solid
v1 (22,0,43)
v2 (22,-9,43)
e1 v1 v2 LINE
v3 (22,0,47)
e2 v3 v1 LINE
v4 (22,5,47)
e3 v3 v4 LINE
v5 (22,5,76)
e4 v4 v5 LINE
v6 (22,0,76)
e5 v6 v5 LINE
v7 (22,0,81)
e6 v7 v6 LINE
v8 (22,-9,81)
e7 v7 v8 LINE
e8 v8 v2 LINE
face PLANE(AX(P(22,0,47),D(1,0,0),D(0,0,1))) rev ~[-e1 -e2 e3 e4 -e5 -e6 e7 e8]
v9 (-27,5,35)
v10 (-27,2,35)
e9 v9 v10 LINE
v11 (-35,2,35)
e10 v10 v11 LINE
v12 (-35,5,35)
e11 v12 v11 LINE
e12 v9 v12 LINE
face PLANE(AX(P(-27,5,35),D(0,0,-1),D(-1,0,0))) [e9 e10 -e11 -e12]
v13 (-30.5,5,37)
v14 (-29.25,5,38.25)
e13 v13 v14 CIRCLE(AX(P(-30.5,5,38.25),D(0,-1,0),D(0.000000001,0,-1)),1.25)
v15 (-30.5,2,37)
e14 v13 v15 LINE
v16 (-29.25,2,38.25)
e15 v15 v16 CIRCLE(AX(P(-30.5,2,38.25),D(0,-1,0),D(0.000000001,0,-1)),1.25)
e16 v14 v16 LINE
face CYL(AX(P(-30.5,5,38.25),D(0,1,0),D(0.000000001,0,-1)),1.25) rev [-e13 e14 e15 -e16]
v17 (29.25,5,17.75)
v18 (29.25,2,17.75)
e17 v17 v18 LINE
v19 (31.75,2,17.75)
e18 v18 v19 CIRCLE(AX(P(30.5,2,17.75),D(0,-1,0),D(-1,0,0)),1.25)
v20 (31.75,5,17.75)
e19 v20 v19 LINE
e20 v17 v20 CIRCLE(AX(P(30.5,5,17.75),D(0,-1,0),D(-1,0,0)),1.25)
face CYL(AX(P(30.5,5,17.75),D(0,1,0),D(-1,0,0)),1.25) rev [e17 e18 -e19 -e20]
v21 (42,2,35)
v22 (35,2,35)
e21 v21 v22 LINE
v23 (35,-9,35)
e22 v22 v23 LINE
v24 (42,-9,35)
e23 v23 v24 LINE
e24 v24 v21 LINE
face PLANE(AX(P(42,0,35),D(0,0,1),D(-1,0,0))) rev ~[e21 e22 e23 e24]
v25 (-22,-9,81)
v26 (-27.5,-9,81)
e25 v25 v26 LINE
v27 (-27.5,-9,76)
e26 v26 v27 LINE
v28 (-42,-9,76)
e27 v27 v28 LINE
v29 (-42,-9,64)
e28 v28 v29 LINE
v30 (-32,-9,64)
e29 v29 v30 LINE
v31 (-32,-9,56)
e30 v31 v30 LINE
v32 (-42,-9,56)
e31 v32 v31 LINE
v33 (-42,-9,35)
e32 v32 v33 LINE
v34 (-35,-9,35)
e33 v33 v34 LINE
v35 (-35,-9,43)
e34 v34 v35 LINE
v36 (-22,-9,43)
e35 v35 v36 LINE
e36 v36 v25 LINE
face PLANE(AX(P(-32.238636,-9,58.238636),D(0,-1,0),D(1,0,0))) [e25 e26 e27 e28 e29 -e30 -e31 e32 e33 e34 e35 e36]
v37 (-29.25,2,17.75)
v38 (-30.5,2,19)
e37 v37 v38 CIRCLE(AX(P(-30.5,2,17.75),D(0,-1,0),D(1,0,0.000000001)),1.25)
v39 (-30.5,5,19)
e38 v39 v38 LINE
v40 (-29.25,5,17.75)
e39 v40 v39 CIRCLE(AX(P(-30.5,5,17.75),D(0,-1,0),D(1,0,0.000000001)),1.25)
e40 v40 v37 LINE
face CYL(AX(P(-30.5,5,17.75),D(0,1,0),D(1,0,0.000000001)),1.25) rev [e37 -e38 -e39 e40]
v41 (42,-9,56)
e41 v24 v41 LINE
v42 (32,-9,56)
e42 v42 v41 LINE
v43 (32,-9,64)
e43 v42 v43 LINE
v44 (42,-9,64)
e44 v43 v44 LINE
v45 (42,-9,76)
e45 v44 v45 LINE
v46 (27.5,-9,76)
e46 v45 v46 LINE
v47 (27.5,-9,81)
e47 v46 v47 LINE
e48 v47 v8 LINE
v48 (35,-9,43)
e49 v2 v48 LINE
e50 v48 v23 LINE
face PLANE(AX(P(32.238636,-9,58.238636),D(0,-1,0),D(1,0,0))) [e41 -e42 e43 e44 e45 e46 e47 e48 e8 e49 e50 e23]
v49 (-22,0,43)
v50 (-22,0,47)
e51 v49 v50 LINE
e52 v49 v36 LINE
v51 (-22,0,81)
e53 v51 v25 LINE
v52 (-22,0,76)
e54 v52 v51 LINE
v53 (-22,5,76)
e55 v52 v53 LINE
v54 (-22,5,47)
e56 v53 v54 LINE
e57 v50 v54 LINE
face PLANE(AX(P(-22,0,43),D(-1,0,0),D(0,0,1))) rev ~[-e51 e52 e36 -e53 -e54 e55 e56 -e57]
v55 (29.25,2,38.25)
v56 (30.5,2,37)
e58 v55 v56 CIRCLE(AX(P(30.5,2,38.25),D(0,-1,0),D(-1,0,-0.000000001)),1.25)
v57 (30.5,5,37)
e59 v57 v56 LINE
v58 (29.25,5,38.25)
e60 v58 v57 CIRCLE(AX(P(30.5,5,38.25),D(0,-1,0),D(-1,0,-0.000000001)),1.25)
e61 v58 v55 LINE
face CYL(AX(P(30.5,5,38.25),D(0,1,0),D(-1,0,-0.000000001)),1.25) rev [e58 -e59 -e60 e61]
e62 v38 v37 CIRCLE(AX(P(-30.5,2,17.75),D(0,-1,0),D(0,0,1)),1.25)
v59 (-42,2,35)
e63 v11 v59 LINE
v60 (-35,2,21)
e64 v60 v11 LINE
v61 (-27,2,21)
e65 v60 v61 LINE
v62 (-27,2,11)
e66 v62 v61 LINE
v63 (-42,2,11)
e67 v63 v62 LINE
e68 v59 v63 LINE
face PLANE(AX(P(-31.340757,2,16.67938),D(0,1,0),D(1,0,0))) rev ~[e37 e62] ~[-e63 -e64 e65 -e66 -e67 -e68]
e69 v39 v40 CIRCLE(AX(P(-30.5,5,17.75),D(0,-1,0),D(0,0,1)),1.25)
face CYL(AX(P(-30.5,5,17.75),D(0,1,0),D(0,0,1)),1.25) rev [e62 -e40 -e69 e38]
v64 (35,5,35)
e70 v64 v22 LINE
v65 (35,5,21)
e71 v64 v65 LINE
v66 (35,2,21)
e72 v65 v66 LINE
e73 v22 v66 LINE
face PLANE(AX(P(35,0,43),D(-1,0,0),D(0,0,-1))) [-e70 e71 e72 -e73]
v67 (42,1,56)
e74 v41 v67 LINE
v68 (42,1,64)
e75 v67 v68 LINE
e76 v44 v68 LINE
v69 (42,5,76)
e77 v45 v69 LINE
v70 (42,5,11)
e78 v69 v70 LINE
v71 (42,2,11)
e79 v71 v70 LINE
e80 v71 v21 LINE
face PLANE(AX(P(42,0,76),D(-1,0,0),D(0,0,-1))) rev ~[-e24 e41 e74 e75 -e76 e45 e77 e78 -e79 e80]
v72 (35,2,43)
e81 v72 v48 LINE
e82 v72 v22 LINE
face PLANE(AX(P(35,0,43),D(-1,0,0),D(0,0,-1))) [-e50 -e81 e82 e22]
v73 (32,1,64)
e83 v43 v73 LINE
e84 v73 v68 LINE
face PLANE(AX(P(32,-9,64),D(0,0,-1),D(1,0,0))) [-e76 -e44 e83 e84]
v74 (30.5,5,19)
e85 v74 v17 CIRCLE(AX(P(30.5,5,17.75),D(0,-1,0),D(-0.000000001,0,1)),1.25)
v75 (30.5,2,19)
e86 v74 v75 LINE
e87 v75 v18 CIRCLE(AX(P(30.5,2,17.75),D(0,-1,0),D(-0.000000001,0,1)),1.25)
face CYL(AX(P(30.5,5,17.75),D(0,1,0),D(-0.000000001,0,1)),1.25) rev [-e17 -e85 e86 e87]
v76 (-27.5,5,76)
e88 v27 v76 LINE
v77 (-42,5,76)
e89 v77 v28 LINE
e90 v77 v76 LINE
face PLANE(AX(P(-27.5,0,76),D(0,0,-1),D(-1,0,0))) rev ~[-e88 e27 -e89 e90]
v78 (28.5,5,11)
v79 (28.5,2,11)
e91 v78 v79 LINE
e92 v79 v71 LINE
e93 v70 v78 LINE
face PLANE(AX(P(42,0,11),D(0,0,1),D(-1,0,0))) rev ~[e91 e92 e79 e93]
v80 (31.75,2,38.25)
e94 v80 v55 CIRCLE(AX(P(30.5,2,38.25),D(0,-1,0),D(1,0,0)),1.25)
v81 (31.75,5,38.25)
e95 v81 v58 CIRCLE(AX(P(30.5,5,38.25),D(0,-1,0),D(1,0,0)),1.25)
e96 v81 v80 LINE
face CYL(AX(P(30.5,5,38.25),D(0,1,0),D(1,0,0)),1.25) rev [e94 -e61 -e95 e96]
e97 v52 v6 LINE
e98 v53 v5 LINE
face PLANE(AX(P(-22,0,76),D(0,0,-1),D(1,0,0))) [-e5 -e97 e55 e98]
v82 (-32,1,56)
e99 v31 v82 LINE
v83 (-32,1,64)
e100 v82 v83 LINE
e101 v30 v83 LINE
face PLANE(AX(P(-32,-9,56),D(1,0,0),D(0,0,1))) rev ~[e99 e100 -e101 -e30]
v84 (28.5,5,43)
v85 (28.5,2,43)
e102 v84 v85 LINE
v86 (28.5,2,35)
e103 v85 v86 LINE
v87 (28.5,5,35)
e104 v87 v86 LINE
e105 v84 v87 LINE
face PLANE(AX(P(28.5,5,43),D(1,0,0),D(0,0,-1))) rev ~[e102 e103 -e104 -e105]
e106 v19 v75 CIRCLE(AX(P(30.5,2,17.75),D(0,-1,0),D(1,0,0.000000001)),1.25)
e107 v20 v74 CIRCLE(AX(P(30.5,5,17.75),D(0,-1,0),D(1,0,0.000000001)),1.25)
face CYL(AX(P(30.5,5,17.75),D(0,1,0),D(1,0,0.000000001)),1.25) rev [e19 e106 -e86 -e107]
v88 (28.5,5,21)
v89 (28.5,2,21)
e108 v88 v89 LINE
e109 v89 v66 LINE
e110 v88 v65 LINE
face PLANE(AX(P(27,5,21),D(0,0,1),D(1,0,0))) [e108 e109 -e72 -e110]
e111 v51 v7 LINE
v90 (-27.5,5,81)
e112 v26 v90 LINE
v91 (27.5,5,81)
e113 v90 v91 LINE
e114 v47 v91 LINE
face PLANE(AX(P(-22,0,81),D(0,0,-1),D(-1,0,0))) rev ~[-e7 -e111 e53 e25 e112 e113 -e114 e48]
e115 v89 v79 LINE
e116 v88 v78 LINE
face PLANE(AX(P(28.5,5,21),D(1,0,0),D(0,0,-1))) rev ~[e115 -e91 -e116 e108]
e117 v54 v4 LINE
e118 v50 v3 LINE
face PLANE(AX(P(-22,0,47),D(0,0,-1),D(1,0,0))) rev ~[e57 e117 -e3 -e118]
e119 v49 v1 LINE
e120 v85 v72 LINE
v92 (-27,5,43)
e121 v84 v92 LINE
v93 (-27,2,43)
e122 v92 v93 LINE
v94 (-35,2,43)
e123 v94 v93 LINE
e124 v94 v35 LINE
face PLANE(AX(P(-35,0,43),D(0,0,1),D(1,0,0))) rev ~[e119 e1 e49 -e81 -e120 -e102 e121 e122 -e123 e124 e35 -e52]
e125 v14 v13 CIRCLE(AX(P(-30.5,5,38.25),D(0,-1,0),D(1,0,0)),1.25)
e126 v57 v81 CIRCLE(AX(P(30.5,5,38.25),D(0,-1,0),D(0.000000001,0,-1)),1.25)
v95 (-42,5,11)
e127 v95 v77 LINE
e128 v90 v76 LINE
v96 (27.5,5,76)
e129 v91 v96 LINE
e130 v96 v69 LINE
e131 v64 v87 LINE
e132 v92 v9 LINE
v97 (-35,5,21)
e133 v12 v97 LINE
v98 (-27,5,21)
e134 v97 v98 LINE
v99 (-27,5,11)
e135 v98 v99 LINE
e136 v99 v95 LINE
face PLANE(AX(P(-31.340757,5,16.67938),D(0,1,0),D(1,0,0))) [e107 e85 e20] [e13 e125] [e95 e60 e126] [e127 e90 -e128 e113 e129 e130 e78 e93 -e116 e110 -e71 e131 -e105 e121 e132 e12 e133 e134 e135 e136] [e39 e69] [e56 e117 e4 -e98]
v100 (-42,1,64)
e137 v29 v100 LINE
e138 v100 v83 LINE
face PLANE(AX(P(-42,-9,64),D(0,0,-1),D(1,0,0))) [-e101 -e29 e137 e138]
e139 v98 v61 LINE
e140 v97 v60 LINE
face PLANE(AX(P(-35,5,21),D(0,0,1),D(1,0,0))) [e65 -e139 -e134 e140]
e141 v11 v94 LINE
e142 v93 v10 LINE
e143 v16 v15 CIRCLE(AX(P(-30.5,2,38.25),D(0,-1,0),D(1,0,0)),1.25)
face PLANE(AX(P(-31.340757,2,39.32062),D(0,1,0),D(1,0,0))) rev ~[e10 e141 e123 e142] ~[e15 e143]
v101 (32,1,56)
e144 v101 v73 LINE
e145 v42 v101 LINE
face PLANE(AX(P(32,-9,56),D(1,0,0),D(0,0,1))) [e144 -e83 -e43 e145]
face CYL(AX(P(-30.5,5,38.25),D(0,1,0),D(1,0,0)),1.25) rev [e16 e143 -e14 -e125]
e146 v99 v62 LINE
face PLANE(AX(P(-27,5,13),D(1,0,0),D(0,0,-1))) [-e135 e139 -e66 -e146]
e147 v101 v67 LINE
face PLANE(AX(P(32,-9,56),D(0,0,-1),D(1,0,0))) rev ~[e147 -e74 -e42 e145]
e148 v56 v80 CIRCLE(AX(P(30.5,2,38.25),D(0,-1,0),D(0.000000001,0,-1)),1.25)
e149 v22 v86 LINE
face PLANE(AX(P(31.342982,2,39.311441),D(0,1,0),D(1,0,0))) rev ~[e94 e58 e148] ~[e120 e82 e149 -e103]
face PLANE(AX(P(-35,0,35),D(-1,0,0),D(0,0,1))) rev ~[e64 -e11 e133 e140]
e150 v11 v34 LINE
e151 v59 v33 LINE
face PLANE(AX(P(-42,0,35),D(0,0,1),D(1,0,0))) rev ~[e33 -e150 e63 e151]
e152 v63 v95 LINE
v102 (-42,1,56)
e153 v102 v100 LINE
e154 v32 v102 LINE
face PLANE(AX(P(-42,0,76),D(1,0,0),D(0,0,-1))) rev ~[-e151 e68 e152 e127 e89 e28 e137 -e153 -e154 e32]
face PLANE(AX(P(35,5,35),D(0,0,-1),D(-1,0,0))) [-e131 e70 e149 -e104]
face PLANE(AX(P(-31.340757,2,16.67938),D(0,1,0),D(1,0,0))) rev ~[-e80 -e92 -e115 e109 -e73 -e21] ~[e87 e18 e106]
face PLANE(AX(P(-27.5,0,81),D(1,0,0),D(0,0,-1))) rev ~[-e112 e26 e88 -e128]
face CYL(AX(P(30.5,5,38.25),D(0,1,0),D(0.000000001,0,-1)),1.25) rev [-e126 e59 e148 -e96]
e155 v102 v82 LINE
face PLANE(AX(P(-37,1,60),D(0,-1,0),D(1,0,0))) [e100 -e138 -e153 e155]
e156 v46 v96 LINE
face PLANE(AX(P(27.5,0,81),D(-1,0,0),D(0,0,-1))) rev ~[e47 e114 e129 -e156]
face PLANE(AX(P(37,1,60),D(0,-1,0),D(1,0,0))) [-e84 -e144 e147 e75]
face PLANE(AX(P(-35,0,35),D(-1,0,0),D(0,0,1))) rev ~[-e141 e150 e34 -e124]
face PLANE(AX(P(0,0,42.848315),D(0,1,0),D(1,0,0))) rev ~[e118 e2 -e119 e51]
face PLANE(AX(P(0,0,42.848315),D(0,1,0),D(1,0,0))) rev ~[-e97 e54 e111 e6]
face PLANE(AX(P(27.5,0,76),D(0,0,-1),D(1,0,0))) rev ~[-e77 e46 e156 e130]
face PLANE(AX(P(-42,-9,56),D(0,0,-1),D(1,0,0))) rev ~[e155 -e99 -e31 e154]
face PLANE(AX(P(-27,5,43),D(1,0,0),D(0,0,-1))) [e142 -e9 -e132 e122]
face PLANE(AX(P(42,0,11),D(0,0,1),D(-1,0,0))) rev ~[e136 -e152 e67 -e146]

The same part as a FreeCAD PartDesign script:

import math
import FreeCAD as App
import Part
import Sketcher
from FreeCAD import Vector
Q = App.Units.Quantity

doc = App.newDocument("Part")
params = doc.addObject("Spreadsheet::Sheet", "Params")
for row, (alias, value) in enumerate([
    ("sketch1_width", "55 mm"),
    ("sketch1_width2", "84 mm"),
    ("sketch1_width3", "44 mm"),
    ("sketch1_width4", "70 mm"),
    ("sketch1_height", "65 mm"),
    ("pad1_length", "5 mm"),
    ("sketch2_width", "7 mm"),
    ("sketch2_width2", "13 mm"),
    ("sketch2_height", "41 mm"),
    ("sketch2_height2", "8 mm"),
    ("sketch2_height3", "38 mm"),
    ("pad2_length", "9 mm"),
    ("sketch3_width", "84 mm"),
    ("sketch3_width2", "7 mm"),
    ("sketch3_height", "24 mm"),
    ("sketch3_height2", "22 mm"),
    ("pocket1_length", "2 mm"),
    ("sketch4_width", "8 mm"),
    ("sketch4_radius", "1.25 mm"),
    ("pad3_length", "3 mm"),
    ("sketch5_width", "54 mm"),
    ("sketch5_height", "8 mm"),
    ("sketch5_height2", "10 mm"),
    ("sketch5_width2", "1.5 mm"),
    ("pocket2_length", "10 mm"),
    ("sketch6_width", "10 mm"),
    ("sketch6_height", "8 mm"),
    ("pocket3_length", "10 mm"),
], start=1):
    params.set(f"A{row}", alias)
    params.set(f"B{row}", "=" + value)
    params.setAlias(f"B{row}", alias)

body = doc.addObject("PartDesign::Body", "Body")

# Sketch on XZ plane
sketch1 = body.newObject("Sketcher::SketchObject", "Sketch")
sketch1.AttachmentSupport = (doc.getObject("XZ_Plane"), [""])
sketch1.MapMode = "FlatFace"
sketch1.addGeometry([
    Part.LineSegment(Vector(-42, 11, 0), Vector(-42, 76, 0)),  # 0
    Part.LineSegment(Vector(-42, 76, 0), Vector(-28, 76, 0)),  # 1
    Part.LineSegment(Vector(-28, 76, 0), Vector(-28, 81, 0)),  # 2
    Part.LineSegment(Vector(-28, 81, 0), Vector(28, 81, 0)),  # 3
    Part.LineSegment(Vector(28, 81, 0), Vector(28, 76, 0)),  # 4
    Part.LineSegment(Vector(28, 76, 0), Vector(42, 76, 0)),  # 5
    Part.LineSegment(Vector(42, 76, 0), Vector(42, 11, 0)),  # 6
    Part.LineSegment(Vector(42, 11, 0), Vector(-42, 11, 0)),  # 7
    Part.LineSegment(Vector(-22, 76, 0), Vector(-22, 47, 0)),  # 8
    Part.LineSegment(Vector(-22, 47, 0), Vector(22, 47, 0)),  # 9
    Part.LineSegment(Vector(22, 47, 0), Vector(22, 76, 0)),  # 10
    Part.LineSegment(Vector(22, 76, 0), Vector(-22, 76, 0)),  # 11
    Part.LineSegment(Vector(35, 43, 0), Vector(-35, 43, 0)),  # 12
    Part.LineSegment(Vector(-35, 43, 0), Vector(-35, 13, 0)),  # 13
    Part.LineSegment(Vector(-35, 13, 0), Vector(35, 13, 0)),  # 14
    Part.LineSegment(Vector(35, 13, 0), Vector(35, 43, 0)),  # 15
], False)
sketch1.addConstraint([
    Sketcher.Constraint("Coincident", 0, 2, 1, 1),
    Sketcher.Constraint("Coincident", 1, 2, 2, 1),
    Sketcher.Constraint("Coincident", 2, 2, 3, 1),
    Sketcher.Constraint("Coincident", 3, 2, 4, 1),
    Sketcher.Constraint("Coincident", 4, 2, 5, 1),
    Sketcher.Constraint("Coincident", 5, 2, 6, 1),
    Sketcher.Constraint("Coincident", 6, 2, 7, 1),
    Sketcher.Constraint("Coincident", 7, 2, 0, 1),
    Sketcher.Constraint("Coincident", 8, 2, 9, 1),
    Sketcher.Constraint("Coincident", 9, 2, 10, 1),
    Sketcher.Constraint("Coincident", 10, 2, 11, 1),
    Sketcher.Constraint("Coincident", 11, 2, 8, 1),
    Sketcher.Constraint("Coincident", 12, 2, 13, 1),
    Sketcher.Constraint("Coincident", 13, 2, 14, 1),
    Sketcher.Constraint("Coincident", 14, 2, 15, 1),
    Sketcher.Constraint("Coincident", 15, 2, 12, 1),
    Sketcher.Constraint("Vertical", 0),
    Sketcher.Constraint("Horizontal", 1),
    Sketcher.Constraint("Vertical", 2),
    Sketcher.Constraint("Horizontal", 3),
    Sketcher.Constraint("Vertical", 4),
    Sketcher.Constraint("Horizontal", 5),
    Sketcher.Constraint("Vertical", 6),
    Sketcher.Constraint("Horizontal", 7),
    Sketcher.Constraint("Vertical", 8),
    Sketcher.Constraint("Horizontal", 9),
    Sketcher.Constraint("Vertical", 10),
    Sketcher.Constraint("Horizontal", 11),
    Sketcher.Constraint("Horizontal", 12),
    Sketcher.Constraint("Vertical", 13),
    Sketcher.Constraint("Horizontal", 14),
    Sketcher.Constraint("Vertical", 15),
    Sketcher.Constraint("Symmetric", 1, 2, 4, 2, -2),
    Sketcher.Constraint("Horizontal", 5, 2, 10, 2),
    Sketcher.Constraint("Equal", 1, 5),
    Sketcher.Constraint("DistanceX", 3, 1, 3, 2, Q("55 mm")),
    Sketcher.Constraint("DistanceX", 7, 2, 7, 1, Q("84 mm")),
    Sketcher.Constraint("DistanceX", 9, 1, 9, 2, Q("44 mm")),
    Sketcher.Constraint("DistanceX", 12, 2, 12, 1, Q("70 mm")),
    Sketcher.Constraint("DistanceY", 0, 1, 0, 2, Q("65 mm")),
    Sketcher.Constraint("DistanceY", 2, 1, 2, 2, Q("5 mm")),
    Sketcher.Constraint("DistanceY", 8, 2, 8, 1, Q("29 mm")),
    Sketcher.Constraint("DistanceY", 13, 2, 13, 1, Q("30 mm")),
    Sketcher.Constraint("DistanceY", -1, 1, 0, 2, Q("76 mm")),
    Sketcher.Constraint("DistanceX", 8, 2, -1, 1, Q("22 mm")),
    Sketcher.Constraint("DistanceX", 12, 2, -1, 1, Q("35 mm")),
    Sketcher.Constraint("DistanceY", -1, 1, 12, 2, Q("43 mm")),
])
sketch1.setExpression("Constraints[35]", "Params.sketch1_width")
sketch1.setExpression("Constraints[36]", "Params.sketch1_width2")
sketch1.setExpression("Constraints[37]", "Params.sketch1_width3")
sketch1.setExpression("Constraints[38]", "Params.sketch1_width4")
sketch1.setExpression("Constraints[39]", "Params.sketch1_height")
pad1 = body.newObject("PartDesign::Pad", "Pad")
pad1.Profile = sketch1
pad1.setExpression("Length", "Params.pad1_length")
pad1.Reversed = True

# Sketch on XZ plane
sketch2 = body.newObject("Sketcher::SketchObject", "Sketch001")
sketch2.AttachmentSupport = (doc.getObject("XZ_Plane"), [""])
sketch2.MapMode = "FlatFace"
sketch2.addGeometry([
    Part.LineSegment(Vector(-28, 76, 0), Vector(-42, 76, 0)),  # 0
    Part.LineSegment(Vector(-42, 76, 0), Vector(-42, 35, 0)),  # 1
    Part.LineSegment(Vector(-42, 35, 0), Vector(-35, 35, 0)),  # 2
    Part.LineSegment(Vector(-35, 35, 0), Vector(-35, 43, 0)),  # 3
    Part.LineSegment(Vector(-35, 43, 0), Vector(-22, 43, 0)),  # 4
    Part.LineSegment(Vector(-22, 43, 0), Vector(-22, 81, 0)),  # 5
    Part.LineSegment(Vector(-22, 81, 0), Vector(-28, 81, 0)),  # 6
    Part.LineSegment(Vector(-28, 81, 0), Vector(-28, 76, 0)),  # 7
    Part.LineSegment(Vector(22, 81, 0), Vector(22, 43, 0)),  # 8
    Part.LineSegment(Vector(22, 43, 0), Vector(35, 43, 0)),  # 9
    Part.LineSegment(Vector(35, 43, 0), Vector(35, 35, 0)),  # 10
    Part.LineSegment(Vector(35, 35, 0), Vector(42, 35, 0)),  # 11
    Part.LineSegment(Vector(42, 35, 0), Vector(42, 76, 0)),  # 12
    Part.LineSegment(Vector(42, 76, 0), Vector(28, 76, 0)),  # 13
    Part.LineSegment(Vector(28, 76, 0), Vector(28, 81, 0)),  # 14
    Part.LineSegment(Vector(28, 81, 0), Vector(22, 81, 0)),  # 15
], False)
sketch2.addConstraint([
    Sketcher.Constraint("Coincident", 0, 2, 1, 1),
    Sketcher.Constraint("Coincident", 1, 2, 2, 1),
    Sketcher.Constraint("Coincident", 2, 2, 3, 1),
    Sketcher.Constraint("Coincident", 3, 2, 4, 1),
    Sketcher.Constraint("Coincident", 4, 2, 5, 1),
    Sketcher.Constraint("Coincident", 5, 2, 6, 1),
    Sketcher.Constraint("Coincident", 6, 2, 7, 1),
    Sketcher.Constraint("Coincident", 7, 2, 0, 1),
    Sketcher.Constraint("Coincident", 8, 2, 9, 1),
    Sketcher.Constraint("Coincident", 9, 2, 10, 1),
    Sketcher.Constraint("Coincident", 10, 2, 11, 1),
    Sketcher.Constraint("Coincident", 11, 2, 12, 1),
    Sketcher.Constraint("Coincident", 12, 2, 13, 1),
    Sketcher.Constraint("Coincident", 13, 2, 14, 1),
    Sketcher.Constraint("Coincident", 14, 2, 15, 1),
    Sketcher.Constraint("Coincident", 15, 2, 8, 1),
    Sketcher.Constraint("Horizontal", 0),
    Sketcher.Constraint("Vertical", 1),
    Sketcher.Constraint("Horizontal", 2),
    Sketcher.Constraint("Vertical", 3),
    Sketcher.Constraint("Horizontal", 4),
    Sketcher.Constraint("Vertical", 5),
    Sketcher.Constraint("Horizontal", 6),
    Sketcher.Constraint("Vertical", 7),
    Sketcher.Constraint("Vertical", 8),
    Sketcher.Constraint("Horizontal", 9),
    Sketcher.Constraint("Vertical", 10),
    Sketcher.Constraint("Horizontal", 11),
    Sketcher.Constraint("Vertical", 12),
    Sketcher.Constraint("Horizontal", 13),
    Sketcher.Constraint("Vertical", 14),
    Sketcher.Constraint("Horizontal", 15),
    Sketcher.Constraint("Symmetric", 4, 2, 8, 2, -2),
    Sketcher.Constraint("Symmetric", 2, 2, 10, 2, -2),
    Sketcher.Constraint("Symmetric", 0, 2, 12, 2, -2),
    Sketcher.Constraint("Symmetric", 6, 2, 14, 2, -2),
    Sketcher.Constraint("DistanceX", 2, 1, 2, 2, Q("7 mm")),
    Sketcher.Constraint("DistanceX", 4, 1, 4, 2, Q("13 mm")),
    Sketcher.Constraint("DistanceY", 1, 2, 1, 1, Q("41 mm")),
    Sketcher.Constraint("DistanceY", 3, 1, 3, 2, Q("8 mm")),
    Sketcher.Constraint("DistanceY", 5, 1, 5, 2, Q("38 mm")),
    Sketcher.Constraint("DistanceX", 0, 2, 0, 1, Q("14.5 mm")),
    Sketcher.Constraint("DistanceX", 0, 2, -1, 1, Q("42 mm")),
    Sketcher.Constraint("DistanceY", -1, 1, 0, 2, Q("76 mm")),
])
sketch2.setExpression("Constraints[36]", "Params.sketch2_width")
sketch2.setExpression("Constraints[37]", "Params.sketch2_width2")
sketch2.setExpression("Constraints[38]", "Params.sketch2_height")
sketch2.setExpression("Constraints[39]", "Params.sketch2_height2")
sketch2.setExpression("Constraints[40]", "Params.sketch2_height3")
pad2 = body.newObject("PartDesign::Pad", "Pad001")
pad2.Profile = sketch2
pad2.setExpression("Length", "Params.pad2_length")

# Sketch on XZ plane
sketch3 = body.newObject("Sketcher::SketchObject", "Sketch002")
sketch3.AttachmentSupport = (doc.getObject("XZ_Plane"), [""])
sketch3.MapMode = "FlatFace"
sketch3.addGeometry([
    Part.LineSegment(Vector(-42, 35, 0), Vector(-42, 11, 0)),  # 0
    Part.LineSegment(Vector(-42, 11, 0), Vector(42, 11, 0)),  # 1
    Part.LineSegment(Vector(42, 11, 0), Vector(42, 35, 0)),  # 2
    Part.LineSegment(Vector(42, 35, 0), Vector(35, 35, 0)),  # 3
    Part.LineSegment(Vector(35, 35, 0), Vector(35, 13, 0)),  # 4
    Part.LineSegment(Vector(35, 13, 0), Vector(-35, 13, 0)),  # 5
    Part.LineSegment(Vector(-35, 13, 0), Vector(-35, 35, 0)),  # 6
    Part.LineSegment(Vector(-35, 35, 0), Vector(-42, 35, 0)),  # 7
], False)
sketch3.addConstraint([
    Sketcher.Constraint("Coincident", 0, 2, 1, 1),
    Sketcher.Constraint("Coincident", 1, 2, 2, 1),
    Sketcher.Constraint("Coincident", 2, 2, 3, 1),
    Sketcher.Constraint("Coincident", 3, 2, 4, 1),
    Sketcher.Constraint("Coincident", 4, 2, 5, 1),
    Sketcher.Constraint("Coincident", 5, 2, 6, 1),
    Sketcher.Constraint("Coincident", 6, 2, 7, 1),
    Sketcher.Constraint("Coincident", 7, 2, 0, 1),
    Sketcher.Constraint("Vertical", 0),
    Sketcher.Constraint("Horizontal", 1),
    Sketcher.Constraint("Vertical", 2),
    Sketcher.Constraint("Horizontal", 3),
    Sketcher.Constraint("Vertical", 4),
    Sketcher.Constraint("Horizontal", 5),
    Sketcher.Constraint("Vertical", 6),
    Sketcher.Constraint("Horizontal", 7),
    Sketcher.Constraint("Symmetric", 3, 2, 6, 2, -2),
    Sketcher.Constraint("Equal", 3, 7),
    Sketcher.Constraint("DistanceX", 1, 1, 1, 2, Q("84 mm")),
    Sketcher.Constraint("DistanceX", 3, 2, 3, 1, Q("7 mm")),
    Sketcher.Constraint("DistanceY", 0, 2, 0, 1, Q("24 mm")),
    Sketcher.Constraint("DistanceY", 4, 2, 4, 1, Q("22 mm")),
    Sketcher.Constraint("DistanceY", -1, 1, 0, 2, Q("11 mm")),
])
sketch3.setExpression("Constraints[18]", "Params.sketch3_width")
sketch3.setExpression("Constraints[19]", "Params.sketch3_width2")
sketch3.setExpression("Constraints[20]", "Params.sketch3_height")
sketch3.setExpression("Constraints[21]", "Params.sketch3_height2")
pocket1 = body.newObject("PartDesign::Pocket", "Pocket")
pocket1.Profile = sketch3
pocket1.setExpression("Length", "Params.pocket1_length")

# Sketch on XZ plane
sketch4 = body.newObject("Sketcher::SketchObject", "Sketch003")
sketch4.AttachmentSupport = (doc.getObject("XZ_Plane"), [""])
sketch4.MapMode = "FlatFace"
sketch4.AttachmentOffset = App.Placement(Vector(0, 0, -5), App.Rotation())
sketch4.addGeometry([
    Part.LineSegment(Vector(-27, 13, 0), Vector(-35, 13, 0)),  # 0
    Part.LineSegment(Vector(-35, 13, 0), Vector(-35, 21, 0)),  # 1
    Part.LineSegment(Vector(-35, 21, 0), Vector(-27, 21, 0)),  # 2
    Part.LineSegment(Vector(-27, 21, 0), Vector(-27, 13, 0)),  # 3
    Part.ArcOfCircle(Part.Circle(Vector(-30.5, 17.8, 0), Vector(0, 0, 1), 1.2), math.radians(90), math.radians(360)),  # 4
    Part.ArcOfCircle(Part.Circle(Vector(-30.5, 17.7, 0), Vector(0, 0, 1), 1.3), math.radians(0), math.radians(90)),  # 5
    Part.LineSegment(Vector(-35, 35, 0), Vector(-35, 43, 0)),  # 6
    Part.LineSegment(Vector(-35, 43, 0), Vector(-27, 43, 0)),  # 7
    Part.LineSegment(Vector(-27, 43, 0), Vector(-27, 35, 0)),  # 8
    Part.LineSegment(Vector(-27, 35, 0), Vector(-35, 35, 0)),  # 9
    Part.ArcOfCircle(Part.Circle(Vector(-30.5, 38.2, 0), Vector(0, 0, 1), 1.2), math.radians(0), math.radians(270)),  # 10
    Part.ArcOfCircle(Part.Circle(Vector(-30.5, 38.3, 0), Vector(0, 0, 1), 1.3), math.radians(-90), math.radians(0)),  # 11
    Part.LineSegment(Vector(35, 35, 0), Vector(27, 35, 0)),  # 12
    Part.LineSegment(Vector(27, 35, 0), Vector(27, 43, 0)),  # 13
    Part.LineSegment(Vector(27, 43, 0), Vector(35, 43, 0)),  # 14
    Part.LineSegment(Vector(35, 43, 0), Vector(35, 35, 0)),  # 15
    Part.ArcOfCircle(Part.Circle(Vector(30.5, 38.3, 0), Vector(0, 0, 1), 1.3), math.radians(-90), math.radians(0)),  # 16
    Part.ArcOfCircle(Part.Circle(Vector(30.5, 38.2, 0), Vector(0, 0, 1), 1.2), math.radians(0), math.radians(180)),  # 17
    Part.ArcOfCircle(Part.Circle(Vector(30.5, 38.3, 0), Vector(0, 0, 1), 1.3), math.radians(-180), math.radians(-90)),  # 18
    Part.LineSegment(Vector(27, 13, 0), Vector(27, 21, 0)),  # 19
    Part.LineSegment(Vector(27, 21, 0), Vector(35, 21, 0)),  # 20
    Part.LineSegment(Vector(35, 21, 0), Vector(35, 13, 0)),  # 21
    Part.LineSegment(Vector(35, 13, 0), Vector(27, 13, 0)),  # 22
    Part.ArcOfCircle(Part.Circle(Vector(30.5, 17.8, 0), Vector(0, 0, 1), 1.2), math.radians(180), math.radians(360)),  # 23
    Part.ArcOfCircle(Part.Circle(Vector(30.5, 17.7, 0), Vector(0, 0, 1), 1.3), math.radians(0), math.radians(90)),  # 24
    Part.ArcOfCircle(Part.Circle(Vector(30.5, 17.7, 0), Vector(0, 0, 1), 1.3), math.radians(90), math.radians(180)),  # 25
], False)
sketch4.addConstraint([
    Sketcher.Constraint("Coincident", 0, 2, 1, 1),
    Sketcher.Constraint("Coincident", 1, 2, 2, 1),
    Sketcher.Constraint("Coincident", 2, 2, 3, 1),
    Sketcher.Constraint("Coincident", 3, 2, 0, 1),
    Sketcher.Constraint("Tangent", 4, 1, 5, 2),
    Sketcher.Constraint("Coincident", 5, 1, 4, 2),
    Sketcher.Constraint("Coincident", 6, 2, 7, 1),
    Sketcher.Constraint("Coincident", 7, 2, 8, 1),
    Sketcher.Constraint("Coincident", 8, 2, 9, 1),
    Sketcher.Constraint("Coincident", 9, 2, 6, 1),
    Sketcher.Constraint("Tangent", 10, 1, 11, 2),
    Sketcher.Constraint("Coincident", 11, 1, 10, 2),
    Sketcher.Constraint("Coincident", 12, 2, 13, 1),
    Sketcher.Constraint("Coincident", 13, 2, 14, 1),
    Sketcher.Constraint("Coincident", 14, 2, 15, 1),
    Sketcher.Constraint("Coincident", 15, 2, 12, 1),
    Sketcher.Constraint("Tangent", 16, 2, 17, 1),
    Sketcher.Constraint("Tangent", 17, 2, 18, 1),
    Sketcher.Constraint("Tangent", 18, 2, 16, 1),
    Sketcher.Constraint("Coincident", 19, 2, 20, 1),
    Sketcher.Constraint("Coincident", 20, 2, 21, 1),
    Sketcher.Constraint("Coincident", 21, 2, 22, 1),
    Sketcher.Constraint("Coincident", 22, 2, 19, 1),
    Sketcher.Constraint("Tangent", 23, 2, 24, 1),
    Sketcher.Constraint("Tangent", 24, 2, 25, 1),
    Sketcher.Constraint("Tangent", 25, 2, 23, 1),
    Sketcher.Constraint("Horizontal", 0),
    Sketcher.Constraint("Vertical", 1),
    Sketcher.Constraint("Horizontal", 2),
    Sketcher.Constraint("Vertical", 3),
    Sketcher.Constraint("Vertical", 6),
    Sketcher.Constraint("Horizontal", 7),
    Sketcher.Constraint("Vertical", 8),
    Sketcher.Constraint("Horizontal", 9),
    Sketcher.Constraint("Horizontal", 12),
    Sketcher.Constraint("Vertical", 13),
    Sketcher.Constraint("Horizontal", 14),
    Sketcher.Constraint("Vertical", 15),
    Sketcher.Constraint("Vertical", 19),
    Sketcher.Constraint("Horizontal", 20),
    Sketcher.Constraint("Vertical", 21),
    Sketcher.Constraint("Horizontal", 22),
    Sketcher.Constraint("Equal", 5, 10),
    Sketcher.Constraint("Equal", 11, 16),
    Sketcher.Constraint("Equal", 18, 23),
    Sketcher.Constraint("Symmetric", 10, 3, 16, 3, -2),
    Sketcher.Constraint("Symmetric", 4, 3, 23, 3, -2),
    Sketcher.Constraint("Symmetric", 8, 2, 12, 2, -2),
    Sketcher.Constraint("Symmetric", 6, 2, 14, 2, -2),
    Sketcher.Constraint("Symmetric", 2, 2, 19, 2, -2),
    Sketcher.Constraint("Symmetric", 0, 2, 21, 2, -2),
    Sketcher.Constraint("Horizontal", 25, 3, 5, 1),
    Sketcher.Constraint("Horizontal", 18, 3, 10, 1),
    Sketcher.Constraint("Horizontal", 10, 1, 16, 2),
    Sketcher.Constraint("Horizontal", 16, 2, 17, 2),
    Sketcher.Constraint("Horizontal", 5, 1, 23, 2),
    Sketcher.Constraint("Horizontal", 23, 2, 25, 2),
    Sketcher.Constraint("Vertical", 5, 3, 10, 3),
    Sketcher.Constraint("Vertical", 11, 3, 4, 1),
    Sketcher.Constraint("Vertical", 1, 2, 6, 2),
    Sketcher.Constraint("Vertical", 3, 2, 7, 2),
    Sketcher.Constraint("Vertical", 4, 1, 11, 1),
    Sketcher.Constraint("Vertical", 25, 3, 18, 2),
    Sketcher.Constraint("Vertical", 18, 2, 24, 2),
    Sketcher.Constraint("Equal", 22, 1),
    Sketcher.Constraint("Equal", 3, 6),
    Sketcher.Constraint("DistanceX", 0, 2, 0, 1, Q("8 mm")),
    Sketcher.Constraint("Radius", 4, Q("1.25 mm")),
    Sketcher.Constraint("DistanceX", 0, 2, -1, 1, Q("35 mm")),
    Sketcher.Constraint("DistanceY", -1, 1, 0, 2, Q("13 mm")),
    Sketcher.Constraint("DistanceY", -1, 1, 4, 1, Q("19 mm")),
    Sketcher.Constraint("DistanceY", -1, 1, 6, 2, Q("43 mm")),
    Sketcher.Constraint("DistanceY", -1, 1, 11, 1, Q("37 mm")),
    Sketcher.Constraint("DistanceX", 10, 3, 16, 3, Q("61 mm")),
])
sketch4.setExpression("Constraints[66]", "Params.sketch4_width")
sketch4.setExpression("Constraints[67]", "Params.sketch4_radius")
pad3 = body.newObject("PartDesign::Pad", "Pad002")
pad3.Profile = sketch4
pad3.setExpression("Length", "Params.pad3_length")

# Sketch on XZ plane
sketch5 = body.newObject("Sketcher::SketchObject", "Sketch004")
sketch5.AttachmentSupport = (doc.getObject("XZ_Plane"), [""])
sketch5.MapMode = "FlatFace"
sketch5.AttachmentOffset = App.Placement(Vector(0, 0, -5), App.Rotation())
sketch5.addGeometry([
    Part.LineSegment(Vector(27, 13, 0), Vector(27, 21, 0)),  # 0
    Part.LineSegment(Vector(27, 21, 0), Vector(28.5, 21, 0)),  # 1
    Part.LineSegment(Vector(28.5, 21, 0), Vector(28.5, 11, 0)),  # 2
    Part.LineSegment(Vector(28.5, 11, 0), Vector(-27, 11, 0)),  # 3
    Part.LineSegment(Vector(-27, 11, 0), Vector(-27, 13, 0)),  # 4
    Part.LineSegment(Vector(-27, 13, 0), Vector(27, 13, 0)),  # 5
    Part.LineSegment(Vector(27, 35, 0), Vector(27, 43, 0)),  # 6
    Part.LineSegment(Vector(27, 43, 0), Vector(28.5, 43, 0)),  # 7
    Part.LineSegment(Vector(28.5, 43, 0), Vector(28.5, 35, 0)),  # 8
    Part.LineSegment(Vector(28.5, 35, 0), Vector(27, 35, 0)),  # 9
], False)
sketch5.addConstraint([
    Sketcher.Constraint("Coincident", 0, 2, 1, 1),
    Sketcher.Constraint("Coincident", 1, 2, 2, 1),
    Sketcher.Constraint("Coincident", 2, 2, 3, 1),
    Sketcher.Constraint("Coincident", 3, 2, 4, 1),
    Sketcher.Constraint("Coincident", 4, 2, 5, 1),
    Sketcher.Constraint("Coincident", 5, 2, 0, 1),
    Sketcher.Constraint("Coincident", 6, 2, 7, 1),
    Sketcher.Constraint("Coincident", 7, 2, 8, 1),
    Sketcher.Constraint("Coincident", 8, 2, 9, 1),
    Sketcher.Constraint("Coincident", 9, 2, 6, 1),
    Sketcher.Constraint("Vertical", 0),
    Sketcher.Constraint("Horizontal", 1),
    Sketcher.Constraint("Vertical", 2),
    Sketcher.Constraint("Horizontal", 3),
    Sketcher.Constraint("Vertical", 4),
    Sketcher.Constraint("Horizontal", 5),
    Sketcher.Constraint("Vertical", 6),
    Sketcher.Constraint("Horizontal", 7),
    Sketcher.Constraint("Vertical", 8),
    Sketcher.Constraint("Horizontal", 9),
    Sketcher.Constraint("Vertical", 5, 2, 6, 2),
    Sketcher.Constraint("Vertical", 2, 2, 7, 2),
    Sketcher.Constraint("Equal", 0, 6),
    Sketcher.Constraint("DistanceX", 5, 1, 5, 2, Q("54 mm")),
    Sketcher.Constraint("DistanceY", 0, 1, 0, 2, Q("8 mm")),
    Sketcher.Constraint("DistanceY", 2, 2, 2, 1, Q("10 mm")),
    Sketcher.Constraint("DistanceX", 1, 1, 1, 2, Q("1.5 mm")),
    Sketcher.Constraint("DistanceX", -1, 1, 0, 2, Q("27 mm")),
    Sketcher.Constraint("DistanceY", -1, 1, 0, 2, Q("21 mm")),
    Sketcher.Constraint("DistanceY", -1, 1, 6, 2, Q("43 mm")),
])
sketch5.setExpression("Constraints[23]", "Params.sketch5_width")
sketch5.setExpression("Constraints[24]", "Params.sketch5_height")
sketch5.setExpression("Constraints[25]", "Params.sketch5_height2")
sketch5.setExpression("Constraints[26]", "Params.sketch5_width2")
pocket2 = body.newObject("PartDesign::Pocket", "Pocket001")
pocket2.Profile = sketch5
pocket2.setExpression("Length", "Params.pocket2_length")
pocket2.Reversed = True

# Sketch on XZ plane
sketch6 = body.newObject("Sketcher::SketchObject", "Sketch005")
sketch6.AttachmentSupport = (doc.getObject("XZ_Plane"), [""])
sketch6.MapMode = "FlatFace"
sketch6.AttachmentOffset = App.Placement(Vector(0, 0, 9), App.Rotation())
sketch6.addGeometry([
    Part.LineSegment(Vector(-42, 64, 0), Vector(-42, 56, 0)),  # 0
    Part.LineSegment(Vector(-42, 56, 0), Vector(-32, 56, 0)),  # 1
    Part.LineSegment(Vector(-32, 56, 0), Vector(-32, 64, 0)),  # 2
    Part.LineSegment(Vector(-32, 64, 0), Vector(-42, 64, 0)),  # 3
    Part.LineSegment(Vector(32, 64, 0), Vector(32, 56, 0)),  # 4
    Part.LineSegment(Vector(32, 56, 0), Vector(42, 56, 0)),  # 5
    Part.LineSegment(Vector(42, 56, 0), Vector(42, 64, 0)),  # 6
    Part.LineSegment(Vector(42, 64, 0), Vector(32, 64, 0)),  # 7
], False)
sketch6.addConstraint([
    Sketcher.Constraint("Coincident", 0, 2, 1, 1),
    Sketcher.Constraint("Coincident", 1, 2, 2, 1),
    Sketcher.Constraint("Coincident", 2, 2, 3, 1),
    Sketcher.Constraint("Coincident", 3, 2, 0, 1),
    Sketcher.Constraint("Coincident", 4, 2, 5, 1),
    Sketcher.Constraint("Coincident", 5, 2, 6, 1),
    Sketcher.Constraint("Coincident", 6, 2, 7, 1),
    Sketcher.Constraint("Coincident", 7, 2, 4, 1),
    Sketcher.Constraint("Vertical", 0),
    Sketcher.Constraint("Horizontal", 1),
    Sketcher.Constraint("Vertical", 2),
    Sketcher.Constraint("Horizontal", 3),
    Sketcher.Constraint("Vertical", 4),
    Sketcher.Constraint("Horizontal", 5),
    Sketcher.Constraint("Vertical", 6),
    Sketcher.Constraint("Horizontal", 7),
    Sketcher.Constraint("Symmetric", 1, 2, 4, 2, -2),
    Sketcher.Constraint("Symmetric", 3, 2, 6, 2, -2),
    Sketcher.Constraint("DistanceX", 1, 1, 1, 2, Q("10 mm")),
    Sketcher.Constraint("DistanceY", 0, 2, 0, 1, Q("8 mm")),
    Sketcher.Constraint("DistanceX", 0, 2, -1, 1, Q("42 mm")),
    Sketcher.Constraint("DistanceY", -1, 1, 0, 2, Q("56 mm")),
])
sketch6.setExpression("Constraints[18]", "Params.sketch6_width")
sketch6.setExpression("Constraints[19]", "Params.sketch6_height")
pocket3 = body.newObject("PartDesign::Pocket", "Pocket002")
pocket3.Profile = sketch6
pocket3.setExpression("Length", "Params.pocket3_length")

doc.recompute()
